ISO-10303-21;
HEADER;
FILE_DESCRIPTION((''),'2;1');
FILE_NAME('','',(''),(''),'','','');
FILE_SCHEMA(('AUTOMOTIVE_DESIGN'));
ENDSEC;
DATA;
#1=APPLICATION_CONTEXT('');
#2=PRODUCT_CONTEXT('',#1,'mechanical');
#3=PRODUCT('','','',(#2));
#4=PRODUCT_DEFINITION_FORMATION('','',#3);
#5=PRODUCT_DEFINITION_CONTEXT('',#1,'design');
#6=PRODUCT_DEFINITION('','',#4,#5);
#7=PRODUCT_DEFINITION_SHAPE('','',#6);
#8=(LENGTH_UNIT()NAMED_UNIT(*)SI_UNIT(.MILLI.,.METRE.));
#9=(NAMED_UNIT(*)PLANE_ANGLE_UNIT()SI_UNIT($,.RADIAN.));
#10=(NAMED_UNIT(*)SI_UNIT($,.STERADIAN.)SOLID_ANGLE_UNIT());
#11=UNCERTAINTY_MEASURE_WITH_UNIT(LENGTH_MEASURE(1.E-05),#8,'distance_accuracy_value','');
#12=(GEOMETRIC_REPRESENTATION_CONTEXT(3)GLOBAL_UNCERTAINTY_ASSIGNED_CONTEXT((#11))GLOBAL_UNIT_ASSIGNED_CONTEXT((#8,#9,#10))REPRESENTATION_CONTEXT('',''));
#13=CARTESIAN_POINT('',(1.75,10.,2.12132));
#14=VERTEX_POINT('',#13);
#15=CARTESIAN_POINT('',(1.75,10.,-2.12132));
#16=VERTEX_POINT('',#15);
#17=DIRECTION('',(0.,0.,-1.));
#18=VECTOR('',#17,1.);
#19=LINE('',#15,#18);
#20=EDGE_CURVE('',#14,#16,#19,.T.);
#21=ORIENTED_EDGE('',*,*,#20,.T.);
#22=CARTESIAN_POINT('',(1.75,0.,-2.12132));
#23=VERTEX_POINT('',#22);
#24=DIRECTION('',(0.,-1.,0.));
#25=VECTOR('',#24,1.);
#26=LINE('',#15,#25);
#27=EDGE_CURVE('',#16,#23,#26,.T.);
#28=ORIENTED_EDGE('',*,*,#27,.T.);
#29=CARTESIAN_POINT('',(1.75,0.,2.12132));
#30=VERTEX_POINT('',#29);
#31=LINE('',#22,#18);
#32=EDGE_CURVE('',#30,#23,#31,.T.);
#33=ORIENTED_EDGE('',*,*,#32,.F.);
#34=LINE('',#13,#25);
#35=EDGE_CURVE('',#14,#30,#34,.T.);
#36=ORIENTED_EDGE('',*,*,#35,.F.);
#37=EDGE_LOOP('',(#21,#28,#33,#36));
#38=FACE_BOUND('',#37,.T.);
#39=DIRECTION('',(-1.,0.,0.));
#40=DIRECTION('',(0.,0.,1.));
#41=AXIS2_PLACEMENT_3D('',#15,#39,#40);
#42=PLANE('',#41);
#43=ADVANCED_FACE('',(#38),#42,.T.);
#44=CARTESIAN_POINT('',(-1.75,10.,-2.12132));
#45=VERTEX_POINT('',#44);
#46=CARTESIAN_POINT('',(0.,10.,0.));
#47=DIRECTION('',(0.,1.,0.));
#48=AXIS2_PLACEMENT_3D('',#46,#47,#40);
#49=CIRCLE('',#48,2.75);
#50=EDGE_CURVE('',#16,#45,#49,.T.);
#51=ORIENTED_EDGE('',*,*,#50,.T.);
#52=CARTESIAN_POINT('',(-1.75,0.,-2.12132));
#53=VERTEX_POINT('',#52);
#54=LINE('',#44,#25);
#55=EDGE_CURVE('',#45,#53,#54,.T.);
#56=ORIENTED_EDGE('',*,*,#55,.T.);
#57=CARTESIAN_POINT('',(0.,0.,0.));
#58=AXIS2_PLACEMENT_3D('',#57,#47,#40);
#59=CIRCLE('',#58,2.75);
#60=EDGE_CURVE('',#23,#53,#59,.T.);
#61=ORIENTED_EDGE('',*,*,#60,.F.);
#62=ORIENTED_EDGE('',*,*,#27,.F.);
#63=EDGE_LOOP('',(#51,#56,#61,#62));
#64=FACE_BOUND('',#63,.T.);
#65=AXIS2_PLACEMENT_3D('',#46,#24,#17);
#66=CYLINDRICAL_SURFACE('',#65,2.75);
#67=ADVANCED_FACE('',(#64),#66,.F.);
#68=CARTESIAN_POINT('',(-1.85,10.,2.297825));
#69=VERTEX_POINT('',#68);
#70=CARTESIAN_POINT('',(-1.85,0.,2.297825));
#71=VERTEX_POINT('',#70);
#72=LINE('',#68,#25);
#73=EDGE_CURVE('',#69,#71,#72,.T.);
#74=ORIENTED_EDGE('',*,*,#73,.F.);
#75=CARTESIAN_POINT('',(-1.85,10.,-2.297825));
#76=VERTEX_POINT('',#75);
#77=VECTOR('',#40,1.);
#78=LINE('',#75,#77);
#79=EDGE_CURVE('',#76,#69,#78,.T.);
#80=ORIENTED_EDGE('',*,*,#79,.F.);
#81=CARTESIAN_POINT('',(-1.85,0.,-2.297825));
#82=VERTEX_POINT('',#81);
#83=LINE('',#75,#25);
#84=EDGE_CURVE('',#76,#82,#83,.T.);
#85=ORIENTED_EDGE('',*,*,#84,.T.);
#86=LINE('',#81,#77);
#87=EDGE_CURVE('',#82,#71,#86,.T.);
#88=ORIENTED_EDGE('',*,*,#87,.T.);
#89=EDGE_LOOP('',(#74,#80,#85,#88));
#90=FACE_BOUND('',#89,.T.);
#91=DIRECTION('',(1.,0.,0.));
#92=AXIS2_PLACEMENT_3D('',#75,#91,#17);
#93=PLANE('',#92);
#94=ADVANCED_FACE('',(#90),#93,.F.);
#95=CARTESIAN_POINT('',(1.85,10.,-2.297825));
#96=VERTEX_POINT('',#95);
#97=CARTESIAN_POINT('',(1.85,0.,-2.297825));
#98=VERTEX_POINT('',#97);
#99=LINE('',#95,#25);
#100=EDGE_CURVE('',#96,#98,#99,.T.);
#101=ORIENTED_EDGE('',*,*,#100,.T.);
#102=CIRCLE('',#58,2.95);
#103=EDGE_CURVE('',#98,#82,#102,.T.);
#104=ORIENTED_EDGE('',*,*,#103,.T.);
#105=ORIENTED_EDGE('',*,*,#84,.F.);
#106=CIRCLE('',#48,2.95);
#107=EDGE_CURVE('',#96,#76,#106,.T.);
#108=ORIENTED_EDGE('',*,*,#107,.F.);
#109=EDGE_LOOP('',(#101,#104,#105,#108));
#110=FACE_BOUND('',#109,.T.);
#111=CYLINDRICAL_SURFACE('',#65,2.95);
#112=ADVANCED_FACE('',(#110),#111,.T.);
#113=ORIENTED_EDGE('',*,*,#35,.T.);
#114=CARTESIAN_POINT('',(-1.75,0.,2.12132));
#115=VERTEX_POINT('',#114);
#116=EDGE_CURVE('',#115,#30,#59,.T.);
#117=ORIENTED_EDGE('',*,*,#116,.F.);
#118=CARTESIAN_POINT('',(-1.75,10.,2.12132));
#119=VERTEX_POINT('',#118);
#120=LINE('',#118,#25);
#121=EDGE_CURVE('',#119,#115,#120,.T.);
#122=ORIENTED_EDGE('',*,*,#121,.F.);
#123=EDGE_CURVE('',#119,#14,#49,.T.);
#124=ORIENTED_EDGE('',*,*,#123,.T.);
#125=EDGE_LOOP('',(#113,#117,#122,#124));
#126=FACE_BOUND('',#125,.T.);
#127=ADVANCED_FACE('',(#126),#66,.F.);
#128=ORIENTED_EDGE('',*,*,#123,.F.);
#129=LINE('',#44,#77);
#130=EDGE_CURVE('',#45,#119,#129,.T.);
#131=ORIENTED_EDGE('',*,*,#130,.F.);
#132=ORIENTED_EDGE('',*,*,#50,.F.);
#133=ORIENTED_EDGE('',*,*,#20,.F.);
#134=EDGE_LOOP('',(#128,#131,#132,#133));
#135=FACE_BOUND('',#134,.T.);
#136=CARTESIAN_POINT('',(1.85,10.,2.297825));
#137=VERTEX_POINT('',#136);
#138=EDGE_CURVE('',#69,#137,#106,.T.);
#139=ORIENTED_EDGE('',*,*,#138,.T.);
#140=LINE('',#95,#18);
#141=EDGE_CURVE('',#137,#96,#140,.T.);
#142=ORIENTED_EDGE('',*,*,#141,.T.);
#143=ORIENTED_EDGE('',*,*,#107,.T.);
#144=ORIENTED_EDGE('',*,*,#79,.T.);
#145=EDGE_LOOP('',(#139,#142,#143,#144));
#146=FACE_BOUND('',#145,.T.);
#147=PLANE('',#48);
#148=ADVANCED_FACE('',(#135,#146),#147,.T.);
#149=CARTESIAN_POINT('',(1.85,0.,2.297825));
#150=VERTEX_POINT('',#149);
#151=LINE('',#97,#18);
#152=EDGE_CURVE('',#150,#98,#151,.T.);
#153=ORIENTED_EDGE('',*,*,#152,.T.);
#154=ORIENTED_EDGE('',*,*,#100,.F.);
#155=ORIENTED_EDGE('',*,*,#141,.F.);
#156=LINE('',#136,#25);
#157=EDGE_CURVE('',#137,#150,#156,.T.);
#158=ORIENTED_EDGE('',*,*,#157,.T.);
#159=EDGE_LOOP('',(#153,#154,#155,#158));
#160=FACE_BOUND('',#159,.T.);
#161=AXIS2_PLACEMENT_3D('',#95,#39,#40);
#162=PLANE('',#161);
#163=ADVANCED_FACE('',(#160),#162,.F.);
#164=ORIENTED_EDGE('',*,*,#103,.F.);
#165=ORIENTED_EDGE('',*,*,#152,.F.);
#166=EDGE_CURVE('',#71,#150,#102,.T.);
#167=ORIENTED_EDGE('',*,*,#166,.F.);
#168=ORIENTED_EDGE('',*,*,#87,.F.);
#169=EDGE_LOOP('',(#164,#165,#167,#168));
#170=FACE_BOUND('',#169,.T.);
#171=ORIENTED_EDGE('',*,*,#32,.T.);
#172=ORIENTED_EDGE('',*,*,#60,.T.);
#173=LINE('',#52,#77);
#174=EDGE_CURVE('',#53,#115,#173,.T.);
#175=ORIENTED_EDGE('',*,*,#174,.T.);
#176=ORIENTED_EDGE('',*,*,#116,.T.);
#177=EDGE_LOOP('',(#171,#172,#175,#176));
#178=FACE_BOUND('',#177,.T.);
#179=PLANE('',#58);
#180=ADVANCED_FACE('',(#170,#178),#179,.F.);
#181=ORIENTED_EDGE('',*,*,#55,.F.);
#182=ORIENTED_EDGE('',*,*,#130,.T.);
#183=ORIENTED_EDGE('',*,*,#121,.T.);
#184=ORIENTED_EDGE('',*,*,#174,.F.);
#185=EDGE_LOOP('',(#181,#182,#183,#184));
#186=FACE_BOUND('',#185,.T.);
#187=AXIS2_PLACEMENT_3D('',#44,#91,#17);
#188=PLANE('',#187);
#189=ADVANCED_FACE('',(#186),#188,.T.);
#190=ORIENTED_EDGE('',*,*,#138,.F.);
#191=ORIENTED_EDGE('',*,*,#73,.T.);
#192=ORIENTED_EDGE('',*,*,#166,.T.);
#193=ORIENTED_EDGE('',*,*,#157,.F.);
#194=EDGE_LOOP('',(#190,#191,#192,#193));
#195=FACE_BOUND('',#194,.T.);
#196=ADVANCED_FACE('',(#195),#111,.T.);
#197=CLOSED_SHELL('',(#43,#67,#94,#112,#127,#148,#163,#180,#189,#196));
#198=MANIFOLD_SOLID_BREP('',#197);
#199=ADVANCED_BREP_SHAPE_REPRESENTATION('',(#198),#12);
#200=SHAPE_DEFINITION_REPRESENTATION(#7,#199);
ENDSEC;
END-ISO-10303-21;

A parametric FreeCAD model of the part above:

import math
import FreeCAD as App
import Part
import Sketcher

V = App.Vector
Q = App.Units.Quantity

doc = App.newDocument("Part")
body = doc.addObject("PartDesign::Body", "Body")

sketch1 = body.newObject("Sketcher::SketchObject", "Sketch")
sketch1.AttachmentSupport = (doc.getObject("XZ_Plane"), [""])
sketch1.MapMode = "FlatFace"
sketch1.addGeometry(Part.LineSegment(V(-1.9, -2.3, 0), V(-1.9, 2.3, 0)), False)
sketch1.addGeometry(Part.ArcOfCircle(Part.Circle(V(0, 0, 0), V(0, 0, 1), 3), math.radians(51), math.radians(129)), False)
sketch1.addGeometry(Part.LineSegment(V(1.9, 2.3, 0), V(1.9, -2.3, 0)), False)
sketch1.addGeometry(Part.ArcOfCircle(Part.Circle(V(0, 0, 0), V(0, 0, 1), 3), math.radians(-129), math.radians(-51)), False)
sketch1.addGeometry(Part.LineSegment(V(-1.8, 2.1, 0), V(-1.8, -2.1, 0)), False)
sketch1.addGeometry(Part.ArcOfCircle(Part.Circle(V(0, 0, 0), V(0, 0, 1), 2.8), math.radians(-130), math.radians(-50)), False)
sketch1.addGeometry(Part.LineSegment(V(1.8, -2.1, 0), V(1.8, 2.1, 0)), False)
sketch1.addGeometry(Part.ArcOfCircle(Part.Circle(V(0, 0, 0), V(0, 0, 1), 2.8), math.radians(50), math.radians(130)), False)
sketch1.addConstraint(Sketcher.Constraint("Coincident", 0, 2, 1, 2))
sketch1.addConstraint(Sketcher.Constraint("Coincident", 1, 1, 2, 1))
sketch1.addConstraint(Sketcher.Constraint("Coincident", 2, 2, 3, 2))
sketch1.addConstraint(Sketcher.Constraint("Coincident", 3, 1, 0, 1))
sketch1.addConstraint(Sketcher.Constraint("Coincident", 4, 2, 5, 1))
sketch1.addConstraint(Sketcher.Constraint("Coincident", 5, 2, 6, 1))
sketch1.addConstraint(Sketcher.Constraint("Coincident", 6, 2, 7, 1))
sketch1.addConstraint(Sketcher.Constraint("Coincident", 7, 2, 4, 1))
sketch1.addConstraint(Sketcher.Constraint("Vertical", 0))
sketch1.addConstraint(Sketcher.Constraint("Vertical", 2))
sketch1.addConstraint(Sketcher.Constraint("Vertical", 4))
sketch1.addConstraint(Sketcher.Constraint("Vertical", 6))
sketch1.addConstraint(Sketcher.Constraint("Coincident", 1, 3, -1, 1))
sketch1.addConstraint(Sketcher.Constraint("Coincident", 3, 3, -1, 1))
sketch1.addConstraint(Sketcher.Constraint("Coincident", 5, 3, -1, 1))
sketch1.addConstraint(Sketcher.Constraint("Coincident", 7, 3, -1, 1))
sketch1.addConstraint(Sketcher.Constraint("Equal", 1, 3))
sketch1.addConstraint(Sketcher.Constraint("Equal", 5, 7))
sketch1.addConstraint(Sketcher.Constraint("Horizontal", 0, 2, 1, 1))
sketch1.addConstraint(Sketcher.Constraint("Horizontal", 4, 2, 5, 2))
sketch1.addConstraint(Sketcher.Constraint("Radius", 1, Q("2.95 mm")))
sketch1.addConstraint(Sketcher.Constraint("Radius", 5, Q("2.75 mm")))
sketch1.addConstraint(Sketcher.Constraint("DistanceX", 0, 2, 1, 1, Q("3.7 mm")))
sketch1.addConstraint(Sketcher.Constraint("DistanceX", 3, 1, 4, 2, Q("0.1 mm")))
pad1 = body.newObject("PartDesign::Pad", "Pad")
pad1.Profile = sketch1
pad1.Length = 10
pad1.Reversed = True

doc.recompute()
